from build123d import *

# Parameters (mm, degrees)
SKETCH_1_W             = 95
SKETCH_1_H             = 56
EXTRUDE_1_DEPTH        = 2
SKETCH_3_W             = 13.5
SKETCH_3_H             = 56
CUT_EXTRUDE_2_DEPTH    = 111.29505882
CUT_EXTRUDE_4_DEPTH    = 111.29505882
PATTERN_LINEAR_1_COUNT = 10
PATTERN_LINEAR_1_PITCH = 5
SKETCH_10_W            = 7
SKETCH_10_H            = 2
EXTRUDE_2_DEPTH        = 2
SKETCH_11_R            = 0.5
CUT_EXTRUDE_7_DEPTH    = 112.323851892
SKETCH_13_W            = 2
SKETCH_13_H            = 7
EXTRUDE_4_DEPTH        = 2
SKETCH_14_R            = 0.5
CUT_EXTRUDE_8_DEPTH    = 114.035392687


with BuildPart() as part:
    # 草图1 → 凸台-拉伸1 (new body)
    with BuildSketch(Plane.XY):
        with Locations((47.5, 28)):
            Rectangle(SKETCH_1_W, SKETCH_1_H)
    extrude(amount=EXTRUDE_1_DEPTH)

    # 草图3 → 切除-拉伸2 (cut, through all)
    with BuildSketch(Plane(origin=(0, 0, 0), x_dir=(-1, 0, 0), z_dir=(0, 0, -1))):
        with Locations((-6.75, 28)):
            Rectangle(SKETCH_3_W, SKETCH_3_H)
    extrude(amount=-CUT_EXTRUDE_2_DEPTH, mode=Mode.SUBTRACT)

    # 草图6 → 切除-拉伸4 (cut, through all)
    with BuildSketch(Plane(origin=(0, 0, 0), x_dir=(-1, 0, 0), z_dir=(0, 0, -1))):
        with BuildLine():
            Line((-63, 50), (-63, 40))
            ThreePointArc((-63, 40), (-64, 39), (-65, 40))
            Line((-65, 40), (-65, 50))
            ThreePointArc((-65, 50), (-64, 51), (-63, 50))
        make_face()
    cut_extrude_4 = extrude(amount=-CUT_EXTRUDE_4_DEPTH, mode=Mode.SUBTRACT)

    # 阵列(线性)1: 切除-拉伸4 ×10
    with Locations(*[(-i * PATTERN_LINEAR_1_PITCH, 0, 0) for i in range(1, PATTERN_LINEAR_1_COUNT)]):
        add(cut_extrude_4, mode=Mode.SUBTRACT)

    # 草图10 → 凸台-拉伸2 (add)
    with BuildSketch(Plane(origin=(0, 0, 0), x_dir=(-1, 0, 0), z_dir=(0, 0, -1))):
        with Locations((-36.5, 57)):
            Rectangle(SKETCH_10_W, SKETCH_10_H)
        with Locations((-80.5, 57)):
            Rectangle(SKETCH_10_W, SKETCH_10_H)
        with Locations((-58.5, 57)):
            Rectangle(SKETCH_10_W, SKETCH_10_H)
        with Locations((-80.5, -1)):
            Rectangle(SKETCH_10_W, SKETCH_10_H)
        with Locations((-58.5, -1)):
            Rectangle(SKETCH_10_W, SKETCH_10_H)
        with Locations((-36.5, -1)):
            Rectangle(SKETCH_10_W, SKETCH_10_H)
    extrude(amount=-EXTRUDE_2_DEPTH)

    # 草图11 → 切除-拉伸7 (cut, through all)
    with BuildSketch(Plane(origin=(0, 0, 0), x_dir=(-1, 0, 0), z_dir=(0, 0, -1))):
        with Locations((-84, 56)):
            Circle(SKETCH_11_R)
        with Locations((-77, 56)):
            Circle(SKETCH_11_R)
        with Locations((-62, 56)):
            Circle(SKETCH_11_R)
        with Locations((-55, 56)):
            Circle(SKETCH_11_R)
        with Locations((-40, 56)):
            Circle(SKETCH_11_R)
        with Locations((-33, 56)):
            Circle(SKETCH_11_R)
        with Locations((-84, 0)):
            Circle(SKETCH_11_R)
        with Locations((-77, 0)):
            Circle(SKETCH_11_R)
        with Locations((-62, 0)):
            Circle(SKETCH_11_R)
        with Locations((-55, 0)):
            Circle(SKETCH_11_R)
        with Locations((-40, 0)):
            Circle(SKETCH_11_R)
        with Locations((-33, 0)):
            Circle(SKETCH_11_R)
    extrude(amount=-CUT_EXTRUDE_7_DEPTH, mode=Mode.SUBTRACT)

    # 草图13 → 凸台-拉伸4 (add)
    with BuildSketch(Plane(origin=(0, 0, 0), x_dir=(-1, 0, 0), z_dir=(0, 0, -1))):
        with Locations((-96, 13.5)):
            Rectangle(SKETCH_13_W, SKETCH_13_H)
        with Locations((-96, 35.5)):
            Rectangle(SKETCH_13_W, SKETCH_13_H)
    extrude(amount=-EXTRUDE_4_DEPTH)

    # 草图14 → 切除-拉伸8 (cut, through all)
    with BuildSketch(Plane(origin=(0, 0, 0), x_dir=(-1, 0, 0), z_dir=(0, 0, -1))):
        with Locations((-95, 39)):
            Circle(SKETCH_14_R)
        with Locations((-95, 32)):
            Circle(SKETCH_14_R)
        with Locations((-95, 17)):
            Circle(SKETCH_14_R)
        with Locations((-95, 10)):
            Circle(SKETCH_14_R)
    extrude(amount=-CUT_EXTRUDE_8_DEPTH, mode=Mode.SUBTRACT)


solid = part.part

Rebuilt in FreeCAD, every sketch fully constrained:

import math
import FreeCAD as App
import Part
import Sketcher


def add_polygon(sketch, points):
    """Adds a closed chain of lines whose ends are joined by coincident constraints."""
    first, n = sketch.GeometryCount, len(points)
    for a, b in zip(points, points[1:] + points[:1]):
        sketch.addGeometry(Part.LineSegment(App.Vector(*a, 0), App.Vector(*b, 0)), False)
    for i in range(n):
        sketch.addConstraint(Sketcher.Constraint("Coincident", first + i, 2, first + (i + 1) % n, 1))

doc = App.newDocument("Part")
body = doc.addObject("PartDesign::Body", "Body")

# Sketch on XY plane
sketch1 = body.newObject("Sketcher::SketchObject", "Sketch")
sketch1.AttachmentSupport = (doc.getObject("XY_Plane"), [""])
sketch1.MapMode = "FlatFace"
add_polygon(sketch1, [(0, 56), (0, 0), (95, 0), (95, 56)])  # lines 0-3
sketch1.addConstraint(Sketcher.Constraint("Vertical", 0))
sketch1.addConstraint(Sketcher.Constraint("Horizontal", 1))
sketch1.addConstraint(Sketcher.Constraint("Vertical", 2))
sketch1.addConstraint(Sketcher.Constraint("Horizontal", 3))
sketch1.addConstraint(Sketcher.Constraint("Coincident", 0, 2, -1, 1))
sketch1.addConstraint(Sketcher.Constraint("DistanceX", 1, 1, 1, 2, 95.0))
sketch1.addConstraint(Sketcher.Constraint("DistanceY", 0, 2, 0, 1, 56.0))
pad1 = body.newObject("PartDesign::Pad", "Pad")
pad1.Profile = sketch1
pad1.Length = 2

# Sketch on XY plane
sketch2 = body.newObject("Sketcher::SketchObject", "Sketch001")
sketch2.AttachmentSupport = (doc.getObject("XY_Plane"), [""])
sketch2.MapMode = "FlatFace"
add_polygon(sketch2, [(14, 56), (14, 0), (0, 0), (0, 56)])  # lines 0-3
sketch2.addConstraint(Sketcher.Constraint("Vertical", 0))
sketch2.addConstraint(Sketcher.Constraint("Horizontal", 1))
sketch2.addConstraint(Sketcher.Constraint("Vertical", 2))
sketch2.addConstraint(Sketcher.Constraint("Horizontal", 3))
sketch2.addConstraint(Sketcher.Constraint("Coincident", 1, 2, -1, 1))
sketch2.addConstraint(Sketcher.Constraint("DistanceY", 0, 2, 0, 1, 56.0))
sketch2.addConstraint(Sketcher.Constraint("DistanceX", 1, 2, 1, 1, 13.5))
pocket1 = body.newObject("PartDesign::Pocket", "Pocket")
pocket1.Profile = sketch2
pocket1.Type = "ThroughAll"
pocket1.Reversed = True

# Sketch on XY plane
sketch3 = body.newObject("Sketcher::SketchObject", "Sketch002")
sketch3.AttachmentSupport = (doc.getObject("XY_Plane"), [""])
sketch3.MapMode = "FlatFace"
sketch3.addGeometry(Part.LineSegment(App.Vector(63, 40, 0), App.Vector(63, 50, 0)), False)
sketch3.addGeometry(Part.ArcOfCircle(Part.Circle(App.Vector(64, 50, 0), App.Vector(0, 0, 1), 1), math.radians(0), math.radians(180)), False)
sketch3.addGeometry(Part.LineSegment(App.Vector(65, 50, 0), App.Vector(65, 40, 0)), False)
sketch3.addGeometry(Part.ArcOfCircle(Part.Circle(App.Vector(64, 40, 0), App.Vector(0, 0, 1), 1), math.radians(180), math.radians(360)), False)
sketch3.addConstraint(Sketcher.Constraint("Tangent", 0, 2, 1, 2))
sketch3.addConstraint(Sketcher.Constraint("Tangent", 1, 1, 2, 1))
sketch3.addConstraint(Sketcher.Constraint("Tangent", 2, 2, 3, 2))
sketch3.addConstraint(Sketcher.Constraint("Tangent", 3, 1, 0, 1))
sketch3.addConstraint(Sketcher.Constraint("Vertical", 0))
sketch3.addConstraint(Sketcher.Constraint("Vertical", 2))
sketch3.addConstraint(Sketcher.Constraint("Radius", 1, 1.0))
sketch3.addConstraint(Sketcher.Constraint("DistanceY", 0, 1, 0, 2, 10.0))
sketch3.addConstraint(Sketcher.Constraint("DistanceX", -1, 1, 1, 3, 64.0))
sketch3.addConstraint(Sketcher.Constraint("DistanceY", -1, 1, 1, 3, 50.0))
pocket2 = body.newObject("PartDesign::Pocket", "Pocket001")
pocket2.Profile = sketch3
pocket2.Type = "ThroughAll"
pocket2.Reversed = True
doc.recompute()

linearpattern = body.newObject("PartDesign::LinearPattern", "LinearPattern")
linearpattern.Originals = [pocket2]
linearpattern.Direction = (doc.getObject("X_Axis"), [""])
linearpattern.Mode = "offset"
linearpattern.Offset = 5
linearpattern.Occurrences = 10
linearpattern.Reversed = True
body.Tip = linearpattern

# Sketch on XY plane
sketch4 = body.newObject("Sketcher::SketchObject", "Sketch003")
sketch4.AttachmentSupport = (doc.getObject("XY_Plane"), [""])
sketch4.MapMode = "FlatFace"
add_polygon(sketch4, [(40, 58), (40, 56), (33, 56), (33, 58)])  # lines 0-3
add_polygon(sketch4, [(84, 58), (84, 56), (77, 56), (77, 58)])  # lines 4-7
add_polygon(sketch4, [(62, 58), (62, 56), (55, 56), (55, 58)])  # lines 8-11
add_polygon(sketch4, [(84, 0), (84, -2), (77, -2), (77, 0)])  # lines 12-15
add_polygon(sketch4, [(62, 0), (62, -2), (55, -2), (55, 0)])  # lines 16-19
add_polygon(sketch4, [(40, 0), (40, -2), (33, -2), (33, 0)])  # lines 20-23
sketch4.addConstraint(Sketcher.Constraint("Vertical", 0))
sketch4.addConstraint(Sketcher.Constraint("Horizontal", 1))
sketch4.addConstraint(Sketcher.Constraint("Vertical", 2))
sketch4.addConstraint(Sketcher.Constraint("Horizontal", 3))
sketch4.addConstraint(Sketcher.Constraint("Vertical", 4))
sketch4.addConstraint(Sketcher.Constraint("Horizontal", 5))
sketch4.addConstraint(Sketcher.Constraint("Vertical", 6))
sketch4.addConstraint(Sketcher.Constraint("Horizontal", 7))
sketch4.addConstraint(Sketcher.Constraint("Vertical", 8))
sketch4.addConstraint(Sketcher.Constraint("Horizontal", 9))
sketch4.addConstraint(Sketcher.Constraint("Vertical", 10))
sketch4.addConstraint(Sketcher.Constraint("Horizontal", 11))
sketch4.addConstraint(Sketcher.Constraint("Vertical", 12))
sketch4.addConstraint(Sketcher.Constraint("Horizontal", 13))
sketch4.addConstraint(Sketcher.Constraint("Vertical", 14))
sketch4.addConstraint(Sketcher.Constraint("Horizontal", 15))
sketch4.addConstraint(Sketcher.Constraint("Vertical", 16))
sketch4.addConstraint(Sketcher.Constraint("Horizontal", 17))
sketch4.addConstraint(Sketcher.Constraint("Vertical", 18))
sketch4.addConstraint(Sketcher.Constraint("Horizontal", 19))
sketch4.addConstraint(Sketcher.Constraint("Vertical", 20))
sketch4.addConstraint(Sketcher.Constraint("Horizontal", 21))
sketch4.addConstraint(Sketcher.Constraint("Vertical", 22))
sketch4.addConstraint(Sketcher.Constraint("Horizontal", 23))
sketch4.addConstraint(Sketcher.Constraint("PointOnObject", 14, 2, -1))
sketch4.addConstraint(Sketcher.Constraint("PointOnObject", 18, 2, -1))
sketch4.addConstraint(Sketcher.Constraint("PointOnObject", 22, 2, -1))
sketch4.addConstraint(Sketcher.Constraint("Horizontal", 1, 2, 4, 2))
sketch4.addConstraint(Sketcher.Constraint("Horizontal", 3, 2, 6, 2))
sketch4.addConstraint(Sketcher.Constraint("Horizontal", 5, 2, 8, 2))
sketch4.addConstraint(Sketcher.Constraint("Horizontal", 7, 2, 10, 2))
sketch4.addConstraint(Sketcher.Constraint("Horizontal", 13, 2, 16, 2))
sketch4.addConstraint(Sketcher.Constraint("Horizontal", 17, 2, 20, 2))
sketch4.addConstraint(Sketcher.Constraint("Vertical", 7, 2, 12, 2))
sketch4.addConstraint(Sketcher.Constraint("Vertical", 6, 2, 13, 2))
sketch4.addConstraint(Sketcher.Constraint("Vertical", 11, 2, 16, 2))
sketch4.addConstraint(Sketcher.Constraint("Vertical", 10, 2, 17, 2))
sketch4.addConstraint(Sketcher.Constraint("Vertical", 3, 2, 20, 2))
sketch4.addConstraint(Sketcher.Constraint("Vertical", 2, 2, 21, 2))
sketch4.addConstraint(Sketcher.Constraint("Equal", 3, 5))
sketch4.addConstraint(Sketcher.Constraint("Equal", 7, 9))
sketch4.addConstraint(Sketcher.Constraint("Equal", 10, 12))
sketch4.addConstraint(Sketcher.Constraint("DistanceX", 1, 2, 1, 1, 7.0))
sketch4.addConstraint(Sketcher.Constraint("DistanceY", 0, 2, 0, 1, 2.0))
sketch4.addConstraint(Sketcher.Constraint("DistanceX", -1, 1, 0, 2, 40.0))
sketch4.addConstraint(Sketcher.Constraint("DistanceY", -1, 1, 0, 2, 56.0))
sketch4.addConstraint(Sketcher.Constraint("DistanceX", -1, 1, 4, 2, 84.0))
sketch4.addConstraint(Sketcher.Constraint("DistanceX", -1, 1, 8, 2, 62.0))
pad2 = body.newObject("PartDesign::Pad", "Pad001")
pad2.Profile = sketch4
pad2.Length = 2

# Sketch on XY plane
sketch5 = body.newObject("Sketcher::SketchObject", "Sketch004")
sketch5.AttachmentSupport = (doc.getObject("XY_Plane"), [""])
sketch5.MapMode = "FlatFace"
sketch5.addGeometry(Part.Circle(App.Vector(84, 56, 0), App.Vector(0, 0, 1), 0.5), False)
sketch5.addGeometry(Part.Circle(App.Vector(77, 56, 0), App.Vector(0, 0, 1), 0.5), False)
sketch5.addGeometry(Part.Circle(App.Vector(62, 56, 0), App.Vector(0, 0, 1), 0.5), False)
sketch5.addGeometry(Part.Circle(App.Vector(55, 56, 0), App.Vector(0, 0, 1), 0.5), False)
sketch5.addGeometry(Part.Circle(App.Vector(40, 56, 0), App.Vector(0, 0, 1), 0.5), False)
sketch5.addGeometry(Part.Circle(App.Vector(33, 56, 0), App.Vector(0, 0, 1), 0.5), False)
sketch5.addGeometry(Part.Circle(App.Vector(84, 0, 0), App.Vector(0, 0, 1), 0.5), False)
sketch5.addGeometry(Part.Circle(App.Vector(77, 0, 0), App.Vector(0, 0, 1), 0.5), False)
sketch5.addGeometry(Part.Circle(App.Vector(62, 0, 0), App.Vector(0, 0, 1), 0.5), False)
sketch5.addGeometry(Part.Circle(App.Vector(55, 0, 0), App.Vector(0, 0, 1), 0.5), False)
sketch5.addGeometry(Part.Circle(App.Vector(40, 0, 0), App.Vector(0, 0, 1), 0.5), False)
sketch5.addGeometry(Part.Circle(App.Vector(33, 0, 0), App.Vector(0, 0, 1), 0.5), False)
sketch5.addConstraint(Sketcher.Constraint("Equal", 0, 1))
sketch5.addConstraint(Sketcher.Constraint("Equal", 1, 2))
sketch5.addConstraint(Sketcher.Constraint("Equal", 2, 3))
sketch5.addConstraint(Sketcher.Constraint("Equal", 3, 4))
sketch5.addConstraint(Sketcher.Constraint("Equal", 4, 5))
sketch5.addConstraint(Sketcher.Constraint("Equal", 5, 6))
sketch5.addConstraint(Sketcher.Constraint("Equal", 6, 7))
sketch5.addConstraint(Sketcher.Constraint("Equal", 7, 8))
sketch5.addConstraint(Sketcher.Constraint("Equal", 8, 9))
sketch5.addConstraint(Sketcher.Constraint("Equal", 9, 10))
sketch5.addConstraint(Sketcher.Constraint("Equal", 10, 11))
sketch5.addConstraint(Sketcher.Constraint("PointOnObject", 6, 3, -1))
sketch5.addConstraint(Sketcher.Constraint("PointOnObject", 7, 3, -1))
sketch5.addConstraint(Sketcher.Constraint("PointOnObject", 8, 3, -1))
sketch5.addConstraint(Sketcher.Constraint("PointOnObject", 9, 3, -1))
sketch5.addConstraint(Sketcher.Constraint("PointOnObject", 10, 3, -1))
sketch5.addConstraint(Sketcher.Constraint("PointOnObject", 11, 3, -1))
sketch5.addConstraint(Sketcher.Constraint("Horizontal", 0, 3, 1, 3))
sketch5.addConstraint(Sketcher.Constraint("Horizontal", 1, 3, 2, 3))
sketch5.addConstraint(Sketcher.Constraint("Horizontal", 2, 3, 3, 3))
sketch5.addConstraint(Sketcher.Constraint("Horizontal", 3, 3, 4, 3))
sketch5.addConstraint(Sketcher.Constraint("Horizontal", 4, 3, 5, 3))
sketch5.addConstraint(Sketcher.Constraint("Vertical", 0, 3, 6, 3))
sketch5.addConstraint(Sketcher.Constraint("Vertical", 1, 3, 7, 3))
sketch5.addConstraint(Sketcher.Constraint("Vertical", 2, 3, 8, 3))
sketch5.addConstraint(Sketcher.Constraint("Vertical", 3, 3, 9, 3))
sketch5.addConstraint(Sketcher.Constraint("Vertical", 4, 3, 10, 3))
sketch5.addConstraint(Sketcher.Constraint("Vertical", 5, 3, 11, 3))
sketch5.addConstraint(Sketcher.Constraint("Diameter", 0, 1.0))
sketch5.addConstraint(Sketcher.Constraint("DistanceX", -1, 1, 0, 3, 84.0))
sketch5.addConstraint(Sketcher.Constraint("DistanceY", -1, 1, 0, 3, 56.0))
sketch5.addConstraint(Sketcher.Constraint("DistanceX", -1, 1, 1, 3, 77.0))
sketch5.addConstraint(Sketcher.Constraint("DistanceX", -1, 1, 2, 3, 62.0))
sketch5.addConstraint(Sketcher.Constraint("DistanceX", -1, 1, 3, 3, 55.0))
sketch5.addConstraint(Sketcher.Constraint("DistanceX", -1, 1, 4, 3, 40.0))
sketch5.addConstraint(Sketcher.Constraint("DistanceX", -1, 1, 5, 3, 33.0))
pocket3 = body.newObject("PartDesign::Pocket", "Pocket002")
pocket3.Profile = sketch5
pocket3.Type = "ThroughAll"
pocket3.Reversed = True

# Sketch on XY plane
sketch6 = body.newObject("Sketcher::SketchObject", "Sketch005")
sketch6.AttachmentSupport = (doc.getObject("XY_Plane"), [""])
sketch6.MapMode = "FlatFace"
add_polygon(sketch6, [(97, 17), (97, 10), (95, 10), (95, 17)])  # lines 0-3
add_polygon(sketch6, [(97, 39), (97, 32), (95, 32), (95, 39)])  # lines 4-7
sketch6.addConstraint(Sketcher.Constraint("Vertical", 0))
sketch6.addConstraint(Sketcher.Constraint("Horizontal", 1))
sketch6.addConstraint(Sketcher.Constraint("Vertical", 2))
sketch6.addConstraint(Sketcher.Constraint("Horizontal", 3))
sketch6.addConstraint(Sketcher.Constraint("Vertical", 4))
sketch6.addConstraint(Sketcher.Constraint("Horizontal", 5))
sketch6.addConstraint(Sketcher.Constraint("Vertical", 6))
sketch6.addConstraint(Sketcher.Constraint("Horizontal", 7))
sketch6.addConstraint(Sketcher.Constraint("Vertical", 3, 2, 4, 2))
sketch6.addConstraint(Sketcher.Constraint("Vertical", 2, 2, 5, 2))
sketch6.addConstraint(Sketcher.Constraint("Equal", 2, 4))
sketch6.addConstraint(Sketcher.Constraint("DistanceX", 1, 2, 1, 1, 2.0))
sketch6.addConstraint(Sketcher.Constraint("DistanceY", 0, 2, 0, 1, 7.0))
sketch6.addConstraint(Sketcher.Constraint("DistanceX", -1, 1, 0, 2, 97.0))
sketch6.addConstraint(Sketcher.Constraint("DistanceY", -1, 1, 0, 2, 10.0))
sketch6.addConstraint(Sketcher.Constraint("DistanceY", -1, 1, 4, 2, 32.0))
pad3 = body.newObject("PartDesign::Pad", "Pad002")
pad3.Profile = sketch6
pad3.Length = 2

# Sketch on XY plane
sketch7 = body.newObject("Sketcher::SketchObject", "Sketch006")
sketch7.AttachmentSupport = (doc.getObject("XY_Plane"), [""])
sketch7.MapMode = "FlatFace"
sketch7.addGeometry(Part.Circle(App.Vector(95, 39, 0), App.Vector(0, 0, 1), 0.5), False)
sketch7.addGeometry(Part.Circle(App.Vector(95, 32, 0), App.Vector(0, 0, 1), 0.5), False)
sketch7.addGeometry(Part.Circle(App.Vector(95, 17, 0), App.Vector(0, 0, 1), 0.5), False)
sketch7.addGeometry(Part.Circle(App.Vector(95, 10, 0), App.Vector(0, 0, 1), 0.5), False)
sketch7.addConstraint(Sketcher.Constraint("Equal", 0, 1))
sketch7.addConstraint(Sketcher.Constraint("Equal", 1, 2))
sketch7.addConstraint(Sketcher.Constraint("Equal", 2, 3))
sketch7.addConstraint(Sketcher.Constraint("Vertical", 0, 3, 1, 3))
sketch7.addConstraint(Sketcher.Constraint("Vertical", 1, 3, 2, 3))
sketch7.addConstraint(Sketcher.Constraint("Vertical", 2, 3, 3, 3))
sketch7.addConstraint(Sketcher.Constraint("Diameter", 0, 1.0))
sketch7.addConstraint(Sketcher.Constraint("DistanceX", -1, 1, 0, 3, 95.0))
sketch7.addConstraint(Sketcher.Constraint("DistanceY", -1, 1, 0, 3, 39.0))
sketch7.addConstraint(Sketcher.Constraint("DistanceY", -1, 1, 1, 3, 32.0))
sketch7.addConstraint(Sketcher.Constraint("DistanceY", -1, 1, 2, 3, 17.0))
sketch7.addConstraint(Sketcher.Constraint("DistanceY", -1, 1, 3, 3, 10.0))
pocket4 = body.newObject("PartDesign::Pocket", "Pocket003")
pocket4.Profile = sketch7
pocket4.Type = "ThroughAll"
pocket4.Reversed = True

doc.recompute()
